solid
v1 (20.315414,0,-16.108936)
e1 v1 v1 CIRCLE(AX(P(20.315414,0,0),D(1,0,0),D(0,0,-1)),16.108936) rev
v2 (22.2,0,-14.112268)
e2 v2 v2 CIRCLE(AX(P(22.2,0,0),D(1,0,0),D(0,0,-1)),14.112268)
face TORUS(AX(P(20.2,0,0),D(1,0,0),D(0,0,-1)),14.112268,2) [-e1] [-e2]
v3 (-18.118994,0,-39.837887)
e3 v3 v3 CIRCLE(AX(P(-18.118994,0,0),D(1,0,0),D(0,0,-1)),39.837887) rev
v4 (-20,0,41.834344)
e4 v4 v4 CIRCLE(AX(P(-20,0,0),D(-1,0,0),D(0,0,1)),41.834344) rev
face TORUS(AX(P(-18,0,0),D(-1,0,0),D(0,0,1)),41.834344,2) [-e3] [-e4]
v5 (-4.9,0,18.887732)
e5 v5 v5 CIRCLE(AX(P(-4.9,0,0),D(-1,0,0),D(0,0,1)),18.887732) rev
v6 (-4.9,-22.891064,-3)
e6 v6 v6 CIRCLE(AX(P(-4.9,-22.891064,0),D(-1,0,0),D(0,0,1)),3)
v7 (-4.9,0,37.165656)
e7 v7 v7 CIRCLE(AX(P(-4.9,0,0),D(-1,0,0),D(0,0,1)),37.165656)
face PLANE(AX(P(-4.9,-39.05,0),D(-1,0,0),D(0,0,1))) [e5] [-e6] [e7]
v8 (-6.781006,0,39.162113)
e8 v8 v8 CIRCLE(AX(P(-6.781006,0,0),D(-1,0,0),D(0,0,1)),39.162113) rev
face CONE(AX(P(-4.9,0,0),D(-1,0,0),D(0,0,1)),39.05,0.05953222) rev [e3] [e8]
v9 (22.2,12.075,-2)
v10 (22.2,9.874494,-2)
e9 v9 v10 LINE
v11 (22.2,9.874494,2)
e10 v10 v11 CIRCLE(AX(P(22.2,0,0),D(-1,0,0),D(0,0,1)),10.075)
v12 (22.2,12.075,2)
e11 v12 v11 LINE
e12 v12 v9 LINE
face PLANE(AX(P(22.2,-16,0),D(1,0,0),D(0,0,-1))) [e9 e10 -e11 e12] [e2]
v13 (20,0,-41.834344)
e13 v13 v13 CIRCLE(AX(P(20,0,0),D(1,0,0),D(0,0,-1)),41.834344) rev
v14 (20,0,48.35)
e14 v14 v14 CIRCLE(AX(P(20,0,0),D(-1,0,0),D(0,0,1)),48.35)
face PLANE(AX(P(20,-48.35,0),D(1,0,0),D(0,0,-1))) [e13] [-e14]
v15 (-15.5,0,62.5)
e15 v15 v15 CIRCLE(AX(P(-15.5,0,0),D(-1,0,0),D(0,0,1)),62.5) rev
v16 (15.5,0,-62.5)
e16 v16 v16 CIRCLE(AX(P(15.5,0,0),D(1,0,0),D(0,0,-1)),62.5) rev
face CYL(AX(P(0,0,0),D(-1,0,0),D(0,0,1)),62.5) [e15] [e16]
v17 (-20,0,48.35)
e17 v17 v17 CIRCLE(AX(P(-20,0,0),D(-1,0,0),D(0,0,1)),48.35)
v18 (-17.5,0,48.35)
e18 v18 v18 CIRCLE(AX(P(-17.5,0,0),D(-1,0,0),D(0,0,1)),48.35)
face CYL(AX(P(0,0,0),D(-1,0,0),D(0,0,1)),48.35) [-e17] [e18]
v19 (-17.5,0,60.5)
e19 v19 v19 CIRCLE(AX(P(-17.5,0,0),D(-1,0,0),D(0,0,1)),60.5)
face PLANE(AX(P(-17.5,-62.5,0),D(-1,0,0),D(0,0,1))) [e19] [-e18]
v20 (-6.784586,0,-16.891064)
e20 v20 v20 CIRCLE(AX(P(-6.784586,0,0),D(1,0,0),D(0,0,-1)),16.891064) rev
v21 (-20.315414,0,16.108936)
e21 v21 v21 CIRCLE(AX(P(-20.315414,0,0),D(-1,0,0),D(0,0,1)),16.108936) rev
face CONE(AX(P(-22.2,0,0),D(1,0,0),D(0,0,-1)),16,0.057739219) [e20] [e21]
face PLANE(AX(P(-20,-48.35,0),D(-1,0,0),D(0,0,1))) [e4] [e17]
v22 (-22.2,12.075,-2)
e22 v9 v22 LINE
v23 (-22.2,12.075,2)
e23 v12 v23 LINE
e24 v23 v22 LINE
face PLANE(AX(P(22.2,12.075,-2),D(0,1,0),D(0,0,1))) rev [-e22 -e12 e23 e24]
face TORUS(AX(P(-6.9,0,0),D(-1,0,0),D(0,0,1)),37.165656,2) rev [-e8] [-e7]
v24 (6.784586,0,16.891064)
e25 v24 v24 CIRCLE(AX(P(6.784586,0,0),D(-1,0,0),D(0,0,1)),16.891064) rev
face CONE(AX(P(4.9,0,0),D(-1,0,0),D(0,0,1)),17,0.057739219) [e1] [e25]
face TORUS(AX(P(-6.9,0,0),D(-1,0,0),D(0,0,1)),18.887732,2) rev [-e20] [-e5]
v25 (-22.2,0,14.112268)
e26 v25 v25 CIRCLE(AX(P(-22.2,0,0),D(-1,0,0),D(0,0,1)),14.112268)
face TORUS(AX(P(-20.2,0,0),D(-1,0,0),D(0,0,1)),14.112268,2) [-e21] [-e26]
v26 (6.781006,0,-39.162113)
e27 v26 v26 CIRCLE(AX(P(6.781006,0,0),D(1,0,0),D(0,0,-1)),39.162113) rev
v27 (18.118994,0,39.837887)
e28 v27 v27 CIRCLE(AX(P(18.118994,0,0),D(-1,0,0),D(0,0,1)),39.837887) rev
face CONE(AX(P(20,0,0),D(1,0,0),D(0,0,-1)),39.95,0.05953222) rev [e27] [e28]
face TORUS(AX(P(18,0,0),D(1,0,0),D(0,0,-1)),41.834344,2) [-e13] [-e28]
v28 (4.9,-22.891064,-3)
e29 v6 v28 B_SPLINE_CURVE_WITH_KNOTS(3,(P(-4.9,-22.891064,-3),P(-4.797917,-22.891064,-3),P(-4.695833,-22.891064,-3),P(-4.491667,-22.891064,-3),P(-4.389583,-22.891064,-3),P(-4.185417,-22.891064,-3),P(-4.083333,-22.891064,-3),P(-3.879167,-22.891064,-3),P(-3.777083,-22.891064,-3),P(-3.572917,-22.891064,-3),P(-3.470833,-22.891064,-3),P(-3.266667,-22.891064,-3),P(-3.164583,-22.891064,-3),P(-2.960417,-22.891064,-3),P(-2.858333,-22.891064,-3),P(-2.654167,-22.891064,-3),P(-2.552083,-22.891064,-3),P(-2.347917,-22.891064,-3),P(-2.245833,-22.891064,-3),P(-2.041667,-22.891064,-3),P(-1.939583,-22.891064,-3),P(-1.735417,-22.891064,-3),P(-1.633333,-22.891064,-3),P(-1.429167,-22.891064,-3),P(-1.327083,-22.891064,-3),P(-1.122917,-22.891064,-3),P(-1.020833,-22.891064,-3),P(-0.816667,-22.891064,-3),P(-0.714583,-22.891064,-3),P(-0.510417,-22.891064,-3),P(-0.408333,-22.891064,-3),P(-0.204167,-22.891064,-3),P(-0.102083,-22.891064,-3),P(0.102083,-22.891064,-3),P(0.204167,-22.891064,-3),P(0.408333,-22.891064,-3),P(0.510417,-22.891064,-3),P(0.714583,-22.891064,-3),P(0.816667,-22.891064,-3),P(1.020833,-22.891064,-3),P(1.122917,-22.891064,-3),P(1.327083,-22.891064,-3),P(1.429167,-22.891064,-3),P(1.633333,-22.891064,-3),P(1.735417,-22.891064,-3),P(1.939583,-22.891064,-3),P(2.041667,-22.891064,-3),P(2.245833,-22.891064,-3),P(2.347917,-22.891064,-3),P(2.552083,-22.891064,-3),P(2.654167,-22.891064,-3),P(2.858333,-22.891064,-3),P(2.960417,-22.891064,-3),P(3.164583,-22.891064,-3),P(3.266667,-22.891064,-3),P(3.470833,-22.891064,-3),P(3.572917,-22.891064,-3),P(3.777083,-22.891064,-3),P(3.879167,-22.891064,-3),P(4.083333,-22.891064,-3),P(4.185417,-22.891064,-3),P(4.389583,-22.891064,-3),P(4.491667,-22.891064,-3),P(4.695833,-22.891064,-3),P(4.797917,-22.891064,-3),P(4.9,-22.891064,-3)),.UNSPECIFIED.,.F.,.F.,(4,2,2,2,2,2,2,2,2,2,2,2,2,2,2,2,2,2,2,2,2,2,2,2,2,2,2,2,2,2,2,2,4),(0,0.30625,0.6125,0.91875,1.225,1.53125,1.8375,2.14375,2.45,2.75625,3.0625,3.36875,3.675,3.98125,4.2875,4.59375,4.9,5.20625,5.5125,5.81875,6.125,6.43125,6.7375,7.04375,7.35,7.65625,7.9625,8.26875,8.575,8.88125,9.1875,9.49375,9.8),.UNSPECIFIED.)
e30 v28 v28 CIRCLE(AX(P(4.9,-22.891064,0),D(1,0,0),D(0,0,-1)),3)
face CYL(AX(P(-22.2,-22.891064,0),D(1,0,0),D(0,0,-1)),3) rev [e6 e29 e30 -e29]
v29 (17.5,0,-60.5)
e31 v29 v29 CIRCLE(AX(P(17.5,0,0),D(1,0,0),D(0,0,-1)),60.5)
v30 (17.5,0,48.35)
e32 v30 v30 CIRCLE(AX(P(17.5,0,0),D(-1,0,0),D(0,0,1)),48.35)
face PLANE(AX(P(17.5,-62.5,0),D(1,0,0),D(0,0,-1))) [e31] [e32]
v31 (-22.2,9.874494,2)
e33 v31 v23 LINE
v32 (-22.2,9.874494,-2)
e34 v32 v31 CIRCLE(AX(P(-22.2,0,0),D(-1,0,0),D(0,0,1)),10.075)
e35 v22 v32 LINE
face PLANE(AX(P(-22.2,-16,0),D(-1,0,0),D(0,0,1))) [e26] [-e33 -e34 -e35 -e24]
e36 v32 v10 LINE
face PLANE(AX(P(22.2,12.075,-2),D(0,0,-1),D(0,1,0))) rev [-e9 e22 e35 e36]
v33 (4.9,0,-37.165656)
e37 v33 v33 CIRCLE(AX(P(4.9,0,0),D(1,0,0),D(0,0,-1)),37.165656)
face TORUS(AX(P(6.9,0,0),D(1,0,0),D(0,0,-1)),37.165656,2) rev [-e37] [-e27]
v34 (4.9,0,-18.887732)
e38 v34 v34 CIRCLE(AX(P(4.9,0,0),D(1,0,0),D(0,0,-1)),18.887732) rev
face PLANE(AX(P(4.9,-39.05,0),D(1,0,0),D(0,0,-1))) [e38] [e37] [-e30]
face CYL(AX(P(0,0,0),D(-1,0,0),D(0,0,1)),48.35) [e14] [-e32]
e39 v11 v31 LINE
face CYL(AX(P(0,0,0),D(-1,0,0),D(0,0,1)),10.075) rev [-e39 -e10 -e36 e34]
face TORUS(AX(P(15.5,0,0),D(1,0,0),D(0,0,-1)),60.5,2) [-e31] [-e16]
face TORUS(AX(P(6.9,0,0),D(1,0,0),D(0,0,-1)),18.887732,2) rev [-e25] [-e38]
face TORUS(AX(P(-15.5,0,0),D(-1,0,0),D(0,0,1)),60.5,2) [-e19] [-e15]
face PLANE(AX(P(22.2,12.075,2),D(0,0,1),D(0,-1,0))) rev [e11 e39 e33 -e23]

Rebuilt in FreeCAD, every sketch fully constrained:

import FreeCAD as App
import Part
import Sketcher

V = App.Vector


def edges_at(feature, points):
    """Names of the edges that pass closest to the given points."""
    edges = feature.Shape.Edges
    near = lambda p: min(range(len(edges)), key=lambda i: edges[i].distToShape(Part.Vertex(*p))[0])
    return sorted({f"Edge{near(p) + 1}" for p in points})


def add_polygon(sketch, points):
    """Adds a closed chain of lines whose ends are joined by coincident constraints."""
    first, n = sketch.GeometryCount, len(points)
    for a, b in zip(points, points[1:] + points[:1]):
        sketch.addGeometry(Part.LineSegment(App.Vector(*a, 0), App.Vector(*b, 0)), False)
    for i in range(n):
        sketch.addConstraint(Sketcher.Constraint("Coincident", first + i, 2, first + (i + 1) % n, 1))

doc = App.newDocument("Part")
body = doc.addObject("PartDesign::Body", "Body")

sketch1 = body.newObject("Sketcher::SketchObject", "Sketch")
sketch1.AttachmentSupport = (doc.getObject("XY_Plane"), [""])
sketch1.MapMode = "FlatFace"
add_polygon(sketch1, [(-17.5, -62.5), (17.5, -62.5), (17.5, -48.35), (20, -48.35), (20, -39.95), (4.9, -39.05), (4.9, -17), (22.2, -16), (22.2, -10.075), (-22.2, -10.075), (-22.2, -16), (-4.9, -17), (-4.9, -39.05), (-20, -39.95), (-20, -48.35), (-17.5, -48.35)])
sketch1.addConstraint(Sketcher.Constraint("Horizontal", 0))
sketch1.addConstraint(Sketcher.Constraint("Vertical", 1))
sketch1.addConstraint(Sketcher.Constraint("Horizontal", 2))
sketch1.addConstraint(Sketcher.Constraint("Vertical", 3))
sketch1.addConstraint(Sketcher.Constraint("Vertical", 5))
sketch1.addConstraint(Sketcher.Constraint("Vertical", 7))
sketch1.addConstraint(Sketcher.Constraint("Horizontal", 8))
sketch1.addConstraint(Sketcher.Constraint("Vertical", 9))
sketch1.addConstraint(Sketcher.Constraint("Vertical", 11))
sketch1.addConstraint(Sketcher.Constraint("Vertical", 13))
sketch1.addConstraint(Sketcher.Constraint("Horizontal", 14))
sketch1.addConstraint(Sketcher.Constraint("Vertical", 15))
sketch1.addConstraint(Sketcher.Constraint("Symmetric", 6, 2, 9, 2, -2))
sketch1.addConstraint(Sketcher.Constraint("Symmetric", 5, 2, 10, 2, -2))
sketch1.addConstraint(Sketcher.Constraint("Symmetric", 3, 2, 12, 2, -2))
sketch1.addConstraint(Sketcher.Constraint("Symmetric", 1, 2, 14, 2, -2))
sketch1.addConstraint(Sketcher.Constraint("Horizontal", 4, 2, 11, 2))
sketch1.addConstraint(Sketcher.Constraint("DistanceX", 0, 1, 0, 2, 35.0))
sketch1.addConstraint(Sketcher.Constraint("DistanceX", 2, 1, 2, 2, 2.5))
sketch1.addConstraint(Sketcher.Constraint("DistanceX", 8, 2, 8, 1, 44.4))
sketch1.addConstraint(Sketcher.Constraint("DistanceY", 3, 1, 3, 2, 8.4))
sketch1.addConstraint(Sketcher.Constraint("DistanceY", 5, 2, -1, 1, 17.0))
sketch1.addConstraint(Sketcher.Constraint("DistanceY", 6, 2, -1, 1, 16.0))
sketch1.addConstraint(Sketcher.Constraint("DistanceY", 1, 1, 1, 2, 14.15))
sketch1.addConstraint(Sketcher.Constraint("DistanceY", 5, 1, 5, 2, 22.05))
sketch1.addConstraint(Sketcher.Constraint("DistanceY", 0, 2, -1, 1, 62.5))
sketch1.addConstraint(Sketcher.Constraint("DistanceX", -1, 1, 4, 2, 4.9))
sketch1.addConstraint(Sketcher.Constraint("DistanceY", 7, 1, 7, 2, 5.925))
revolution = body.newObject("PartDesign::Revolution", "Revolution")
revolution.Profile = sketch1
revolution.ReferenceAxis = (sketch1, ["H_Axis"])
revolution.Angle = 360
doc.recompute()

fillet = body.newObject("PartDesign::Fillet", "Fillet")
fillet.Base = (revolution, edges_at(revolution, [
    (20, 0, -39.95),
    (4.9, 0, -39.05),
    (4.9, 0, -17),
    (22.2, 0, -16),
    (-22.2, 0, -16),
    (-4.9, 0, -17),
    (-4.9, 0, -39.05),
    (-20, 0, -39.95),
    (-17.5, 0, -62.5),
    (17.5, 0, -62.5),
]))
fillet.Radius = 2

sketch2 = body.newObject("Sketcher::SketchObject", "Sketch001")
sketch2.AttachmentSupport = (doc.getObject("YZ_Plane"), [""])
sketch2.MapMode = "FlatFace"
sketch2.AttachmentOffset = App.Placement(V(0, 0, -22.2), App.Rotation())
add_polygon(sketch2, [(12.075, -2), (8.075, -2), (8.075, 2), (12.075, 2)])
sketch2.addConstraint(Sketcher.Constraint("Horizontal", 0))
sketch2.addConstraint(Sketcher.Constraint("Vertical", 1))
sketch2.addConstraint(Sketcher.Constraint("Horizontal", 2))
sketch2.addConstraint(Sketcher.Constraint("Vertical", 3))
sketch2.addConstraint(Sketcher.Constraint("Equal", 2, 1))
sketch2.addConstraint(Sketcher.Constraint("DistanceX", 0, 2, 0, 1, 4.0))
sketch2.addConstraint(Sketcher.Constraint("DistanceY", 0, 2, -1, 1, 2.0))
sketch2.addConstraint(Sketcher.Constraint("DistanceX", -1, 1, 0, 2, 8.075))
pocket1 = body.newObject("PartDesign::Pocket", "Pocket")
pocket1.Profile = sketch2
pocket1.Type = "ThroughAll"
pocket1.Reversed = True

sketch3 = body.newObject("Sketcher::SketchObject", "Sketch002")
sketch3.AttachmentSupport = (doc.getObject("YZ_Plane"), [""])
sketch3.MapMode = "FlatFace"
sketch3.AttachmentOffset = App.Placement(V(0, 0, 4.9), App.Rotation())
sketch3.addGeometry(Part.Circle(V(-22.891064, 0, 0), V(0, 0, 1), 3), False)
sketch3.addConstraint(Sketcher.Constraint("PointOnObject", 0, 3, -1))
sketch3.addConstraint(Sketcher.Constraint("Diameter", 0, 6.0))
sketch3.addConstraint(Sketcher.Constraint("DistanceX", 0, 3, -1, 1, 22.891064))
pocket2 = body.newObject("PartDesign::Pocket", "Pocket001")
pocket2.Profile = sketch3
pocket2.Type = "ThroughAll"

doc.recompute()
